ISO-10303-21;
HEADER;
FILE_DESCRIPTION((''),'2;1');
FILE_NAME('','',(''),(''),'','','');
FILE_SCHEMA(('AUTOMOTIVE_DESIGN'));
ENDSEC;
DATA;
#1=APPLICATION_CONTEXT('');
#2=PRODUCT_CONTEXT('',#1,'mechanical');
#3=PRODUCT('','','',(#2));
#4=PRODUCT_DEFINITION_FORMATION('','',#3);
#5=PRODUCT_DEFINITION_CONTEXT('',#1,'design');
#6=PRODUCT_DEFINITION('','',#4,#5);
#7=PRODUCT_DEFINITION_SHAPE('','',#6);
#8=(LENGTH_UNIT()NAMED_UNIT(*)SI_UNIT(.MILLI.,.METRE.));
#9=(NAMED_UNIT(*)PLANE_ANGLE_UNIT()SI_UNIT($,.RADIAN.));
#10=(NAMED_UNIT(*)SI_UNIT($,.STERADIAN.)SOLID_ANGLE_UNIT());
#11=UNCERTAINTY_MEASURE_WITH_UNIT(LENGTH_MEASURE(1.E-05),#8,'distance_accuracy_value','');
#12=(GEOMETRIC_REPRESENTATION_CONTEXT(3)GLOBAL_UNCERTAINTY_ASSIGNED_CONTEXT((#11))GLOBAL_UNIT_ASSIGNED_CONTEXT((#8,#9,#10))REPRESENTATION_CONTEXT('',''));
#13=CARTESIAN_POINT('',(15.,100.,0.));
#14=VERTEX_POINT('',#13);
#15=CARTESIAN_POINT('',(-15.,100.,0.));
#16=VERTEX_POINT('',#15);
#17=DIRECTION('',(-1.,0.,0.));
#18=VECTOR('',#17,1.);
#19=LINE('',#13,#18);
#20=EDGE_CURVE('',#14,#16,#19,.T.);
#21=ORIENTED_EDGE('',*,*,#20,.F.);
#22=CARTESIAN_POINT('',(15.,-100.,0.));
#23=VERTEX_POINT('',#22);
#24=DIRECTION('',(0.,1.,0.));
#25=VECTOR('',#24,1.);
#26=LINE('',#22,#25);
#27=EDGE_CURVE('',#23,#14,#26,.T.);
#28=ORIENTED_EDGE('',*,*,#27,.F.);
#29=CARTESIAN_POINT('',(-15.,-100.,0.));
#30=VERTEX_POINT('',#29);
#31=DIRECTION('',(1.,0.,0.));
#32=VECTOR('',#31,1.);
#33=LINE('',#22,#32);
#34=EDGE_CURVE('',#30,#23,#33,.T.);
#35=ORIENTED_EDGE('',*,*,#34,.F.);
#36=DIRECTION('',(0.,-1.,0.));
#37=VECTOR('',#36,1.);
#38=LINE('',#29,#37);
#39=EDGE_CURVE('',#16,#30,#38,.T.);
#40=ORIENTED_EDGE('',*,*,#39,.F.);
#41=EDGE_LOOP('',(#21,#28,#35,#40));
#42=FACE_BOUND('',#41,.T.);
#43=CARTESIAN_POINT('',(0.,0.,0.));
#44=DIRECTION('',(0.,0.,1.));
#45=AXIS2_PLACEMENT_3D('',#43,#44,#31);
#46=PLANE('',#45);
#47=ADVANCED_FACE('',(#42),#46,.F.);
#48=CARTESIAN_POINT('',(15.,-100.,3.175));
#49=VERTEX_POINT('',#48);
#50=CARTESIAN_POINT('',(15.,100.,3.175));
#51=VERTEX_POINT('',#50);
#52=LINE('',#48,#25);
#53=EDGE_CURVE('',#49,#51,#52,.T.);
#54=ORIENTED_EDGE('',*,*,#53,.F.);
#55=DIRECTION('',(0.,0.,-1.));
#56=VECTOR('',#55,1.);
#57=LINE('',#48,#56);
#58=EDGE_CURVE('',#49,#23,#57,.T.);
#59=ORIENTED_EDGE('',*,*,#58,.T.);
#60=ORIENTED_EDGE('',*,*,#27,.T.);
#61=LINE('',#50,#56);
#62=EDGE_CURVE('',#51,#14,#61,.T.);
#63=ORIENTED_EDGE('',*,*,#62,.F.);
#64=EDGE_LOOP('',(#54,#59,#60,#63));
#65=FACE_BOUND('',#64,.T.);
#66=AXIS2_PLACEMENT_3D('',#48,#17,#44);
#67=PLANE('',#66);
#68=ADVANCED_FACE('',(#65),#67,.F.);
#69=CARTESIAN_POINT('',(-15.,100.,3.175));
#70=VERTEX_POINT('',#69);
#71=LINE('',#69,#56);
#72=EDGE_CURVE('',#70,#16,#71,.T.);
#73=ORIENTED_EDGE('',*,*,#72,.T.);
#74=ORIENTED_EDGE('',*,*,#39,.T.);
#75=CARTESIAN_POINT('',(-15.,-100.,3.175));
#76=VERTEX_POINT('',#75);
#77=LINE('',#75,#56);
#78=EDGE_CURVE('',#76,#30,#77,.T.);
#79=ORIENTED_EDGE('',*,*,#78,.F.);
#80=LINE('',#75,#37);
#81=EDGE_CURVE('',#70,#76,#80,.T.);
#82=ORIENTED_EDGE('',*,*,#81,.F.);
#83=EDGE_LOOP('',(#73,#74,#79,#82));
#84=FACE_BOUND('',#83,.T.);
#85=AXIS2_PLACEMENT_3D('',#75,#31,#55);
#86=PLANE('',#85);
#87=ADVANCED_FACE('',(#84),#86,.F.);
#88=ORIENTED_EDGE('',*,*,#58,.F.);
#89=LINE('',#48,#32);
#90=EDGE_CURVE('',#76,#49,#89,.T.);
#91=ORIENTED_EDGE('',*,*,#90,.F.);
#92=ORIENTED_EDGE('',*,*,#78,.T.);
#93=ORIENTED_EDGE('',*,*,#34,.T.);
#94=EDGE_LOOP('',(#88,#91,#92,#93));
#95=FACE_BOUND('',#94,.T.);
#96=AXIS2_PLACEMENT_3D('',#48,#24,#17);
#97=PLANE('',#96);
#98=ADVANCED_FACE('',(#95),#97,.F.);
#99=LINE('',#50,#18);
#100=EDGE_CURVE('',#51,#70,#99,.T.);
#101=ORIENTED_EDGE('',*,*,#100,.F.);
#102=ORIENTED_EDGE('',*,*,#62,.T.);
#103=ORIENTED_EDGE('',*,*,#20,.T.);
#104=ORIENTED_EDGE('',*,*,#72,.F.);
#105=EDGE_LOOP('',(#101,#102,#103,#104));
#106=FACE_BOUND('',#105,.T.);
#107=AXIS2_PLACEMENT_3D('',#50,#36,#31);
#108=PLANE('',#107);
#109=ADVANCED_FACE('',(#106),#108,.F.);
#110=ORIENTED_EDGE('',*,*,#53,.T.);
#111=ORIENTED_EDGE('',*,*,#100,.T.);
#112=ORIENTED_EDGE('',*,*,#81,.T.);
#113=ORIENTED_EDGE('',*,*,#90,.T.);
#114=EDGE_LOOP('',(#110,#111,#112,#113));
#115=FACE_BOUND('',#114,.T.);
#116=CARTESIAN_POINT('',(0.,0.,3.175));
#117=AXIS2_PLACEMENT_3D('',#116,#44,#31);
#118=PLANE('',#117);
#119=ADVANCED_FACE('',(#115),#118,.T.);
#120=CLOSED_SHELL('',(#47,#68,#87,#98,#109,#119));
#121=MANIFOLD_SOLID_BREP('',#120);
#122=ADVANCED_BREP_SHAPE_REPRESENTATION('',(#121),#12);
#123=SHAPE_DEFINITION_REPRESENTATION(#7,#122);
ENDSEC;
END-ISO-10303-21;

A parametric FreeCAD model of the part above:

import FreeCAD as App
import Part
import Sketcher
Q = App.Units.Quantity

doc = App.newDocument("Part")
body = doc.addObject("PartDesign::Body", "Body")

sketch1 = body.newObject("Sketcher::SketchObject", "Sketch")
sketch1.AttachmentSupport = (doc.getObject("XY_Plane"), [""])
sketch1.MapMode = "FlatFace"
sketch1.addGeometry([
    Part.LineSegment(App.Vector(-15, 100, 0), App.Vector(-15, -100, 0)),
    Part.LineSegment(App.Vector(-15, -100, 0), App.Vector(15, -100, 0)),
    Part.LineSegment(App.Vector(15, -100, 0), App.Vector(15, 100, 0)),
    Part.LineSegment(App.Vector(15, 100, 0), App.Vector(-15, 100, 0)),
], False)
sketch1.addConstraint([
    Sketcher.Constraint("Coincident", 0, 2, 1, 1),
    Sketcher.Constraint("Coincident", 1, 2, 2, 1),
    Sketcher.Constraint("Coincident", 2, 2, 3, 1),
    Sketcher.Constraint("Coincident", 3, 2, 0, 1),
    Sketcher.Constraint("Vertical", 0),
    Sketcher.Constraint("Horizontal", 1),
    Sketcher.Constraint("Vertical", 2),
    Sketcher.Constraint("Horizontal", 3),
    Sketcher.Constraint("Symmetric", 0, 2, 2, 2, -1, 1),
    Sketcher.Constraint("DistanceX", 1, 1, 1, 2, Q("30 mm")),
    Sketcher.Constraint("DistanceY", 0, 2, 0, 1, Q("200 mm")),
])
pad1 = body.newObject("PartDesign::Pad", "Pad")
pad1.Profile = sketch1
pad1.Length = 3.175

doc.recompute()
